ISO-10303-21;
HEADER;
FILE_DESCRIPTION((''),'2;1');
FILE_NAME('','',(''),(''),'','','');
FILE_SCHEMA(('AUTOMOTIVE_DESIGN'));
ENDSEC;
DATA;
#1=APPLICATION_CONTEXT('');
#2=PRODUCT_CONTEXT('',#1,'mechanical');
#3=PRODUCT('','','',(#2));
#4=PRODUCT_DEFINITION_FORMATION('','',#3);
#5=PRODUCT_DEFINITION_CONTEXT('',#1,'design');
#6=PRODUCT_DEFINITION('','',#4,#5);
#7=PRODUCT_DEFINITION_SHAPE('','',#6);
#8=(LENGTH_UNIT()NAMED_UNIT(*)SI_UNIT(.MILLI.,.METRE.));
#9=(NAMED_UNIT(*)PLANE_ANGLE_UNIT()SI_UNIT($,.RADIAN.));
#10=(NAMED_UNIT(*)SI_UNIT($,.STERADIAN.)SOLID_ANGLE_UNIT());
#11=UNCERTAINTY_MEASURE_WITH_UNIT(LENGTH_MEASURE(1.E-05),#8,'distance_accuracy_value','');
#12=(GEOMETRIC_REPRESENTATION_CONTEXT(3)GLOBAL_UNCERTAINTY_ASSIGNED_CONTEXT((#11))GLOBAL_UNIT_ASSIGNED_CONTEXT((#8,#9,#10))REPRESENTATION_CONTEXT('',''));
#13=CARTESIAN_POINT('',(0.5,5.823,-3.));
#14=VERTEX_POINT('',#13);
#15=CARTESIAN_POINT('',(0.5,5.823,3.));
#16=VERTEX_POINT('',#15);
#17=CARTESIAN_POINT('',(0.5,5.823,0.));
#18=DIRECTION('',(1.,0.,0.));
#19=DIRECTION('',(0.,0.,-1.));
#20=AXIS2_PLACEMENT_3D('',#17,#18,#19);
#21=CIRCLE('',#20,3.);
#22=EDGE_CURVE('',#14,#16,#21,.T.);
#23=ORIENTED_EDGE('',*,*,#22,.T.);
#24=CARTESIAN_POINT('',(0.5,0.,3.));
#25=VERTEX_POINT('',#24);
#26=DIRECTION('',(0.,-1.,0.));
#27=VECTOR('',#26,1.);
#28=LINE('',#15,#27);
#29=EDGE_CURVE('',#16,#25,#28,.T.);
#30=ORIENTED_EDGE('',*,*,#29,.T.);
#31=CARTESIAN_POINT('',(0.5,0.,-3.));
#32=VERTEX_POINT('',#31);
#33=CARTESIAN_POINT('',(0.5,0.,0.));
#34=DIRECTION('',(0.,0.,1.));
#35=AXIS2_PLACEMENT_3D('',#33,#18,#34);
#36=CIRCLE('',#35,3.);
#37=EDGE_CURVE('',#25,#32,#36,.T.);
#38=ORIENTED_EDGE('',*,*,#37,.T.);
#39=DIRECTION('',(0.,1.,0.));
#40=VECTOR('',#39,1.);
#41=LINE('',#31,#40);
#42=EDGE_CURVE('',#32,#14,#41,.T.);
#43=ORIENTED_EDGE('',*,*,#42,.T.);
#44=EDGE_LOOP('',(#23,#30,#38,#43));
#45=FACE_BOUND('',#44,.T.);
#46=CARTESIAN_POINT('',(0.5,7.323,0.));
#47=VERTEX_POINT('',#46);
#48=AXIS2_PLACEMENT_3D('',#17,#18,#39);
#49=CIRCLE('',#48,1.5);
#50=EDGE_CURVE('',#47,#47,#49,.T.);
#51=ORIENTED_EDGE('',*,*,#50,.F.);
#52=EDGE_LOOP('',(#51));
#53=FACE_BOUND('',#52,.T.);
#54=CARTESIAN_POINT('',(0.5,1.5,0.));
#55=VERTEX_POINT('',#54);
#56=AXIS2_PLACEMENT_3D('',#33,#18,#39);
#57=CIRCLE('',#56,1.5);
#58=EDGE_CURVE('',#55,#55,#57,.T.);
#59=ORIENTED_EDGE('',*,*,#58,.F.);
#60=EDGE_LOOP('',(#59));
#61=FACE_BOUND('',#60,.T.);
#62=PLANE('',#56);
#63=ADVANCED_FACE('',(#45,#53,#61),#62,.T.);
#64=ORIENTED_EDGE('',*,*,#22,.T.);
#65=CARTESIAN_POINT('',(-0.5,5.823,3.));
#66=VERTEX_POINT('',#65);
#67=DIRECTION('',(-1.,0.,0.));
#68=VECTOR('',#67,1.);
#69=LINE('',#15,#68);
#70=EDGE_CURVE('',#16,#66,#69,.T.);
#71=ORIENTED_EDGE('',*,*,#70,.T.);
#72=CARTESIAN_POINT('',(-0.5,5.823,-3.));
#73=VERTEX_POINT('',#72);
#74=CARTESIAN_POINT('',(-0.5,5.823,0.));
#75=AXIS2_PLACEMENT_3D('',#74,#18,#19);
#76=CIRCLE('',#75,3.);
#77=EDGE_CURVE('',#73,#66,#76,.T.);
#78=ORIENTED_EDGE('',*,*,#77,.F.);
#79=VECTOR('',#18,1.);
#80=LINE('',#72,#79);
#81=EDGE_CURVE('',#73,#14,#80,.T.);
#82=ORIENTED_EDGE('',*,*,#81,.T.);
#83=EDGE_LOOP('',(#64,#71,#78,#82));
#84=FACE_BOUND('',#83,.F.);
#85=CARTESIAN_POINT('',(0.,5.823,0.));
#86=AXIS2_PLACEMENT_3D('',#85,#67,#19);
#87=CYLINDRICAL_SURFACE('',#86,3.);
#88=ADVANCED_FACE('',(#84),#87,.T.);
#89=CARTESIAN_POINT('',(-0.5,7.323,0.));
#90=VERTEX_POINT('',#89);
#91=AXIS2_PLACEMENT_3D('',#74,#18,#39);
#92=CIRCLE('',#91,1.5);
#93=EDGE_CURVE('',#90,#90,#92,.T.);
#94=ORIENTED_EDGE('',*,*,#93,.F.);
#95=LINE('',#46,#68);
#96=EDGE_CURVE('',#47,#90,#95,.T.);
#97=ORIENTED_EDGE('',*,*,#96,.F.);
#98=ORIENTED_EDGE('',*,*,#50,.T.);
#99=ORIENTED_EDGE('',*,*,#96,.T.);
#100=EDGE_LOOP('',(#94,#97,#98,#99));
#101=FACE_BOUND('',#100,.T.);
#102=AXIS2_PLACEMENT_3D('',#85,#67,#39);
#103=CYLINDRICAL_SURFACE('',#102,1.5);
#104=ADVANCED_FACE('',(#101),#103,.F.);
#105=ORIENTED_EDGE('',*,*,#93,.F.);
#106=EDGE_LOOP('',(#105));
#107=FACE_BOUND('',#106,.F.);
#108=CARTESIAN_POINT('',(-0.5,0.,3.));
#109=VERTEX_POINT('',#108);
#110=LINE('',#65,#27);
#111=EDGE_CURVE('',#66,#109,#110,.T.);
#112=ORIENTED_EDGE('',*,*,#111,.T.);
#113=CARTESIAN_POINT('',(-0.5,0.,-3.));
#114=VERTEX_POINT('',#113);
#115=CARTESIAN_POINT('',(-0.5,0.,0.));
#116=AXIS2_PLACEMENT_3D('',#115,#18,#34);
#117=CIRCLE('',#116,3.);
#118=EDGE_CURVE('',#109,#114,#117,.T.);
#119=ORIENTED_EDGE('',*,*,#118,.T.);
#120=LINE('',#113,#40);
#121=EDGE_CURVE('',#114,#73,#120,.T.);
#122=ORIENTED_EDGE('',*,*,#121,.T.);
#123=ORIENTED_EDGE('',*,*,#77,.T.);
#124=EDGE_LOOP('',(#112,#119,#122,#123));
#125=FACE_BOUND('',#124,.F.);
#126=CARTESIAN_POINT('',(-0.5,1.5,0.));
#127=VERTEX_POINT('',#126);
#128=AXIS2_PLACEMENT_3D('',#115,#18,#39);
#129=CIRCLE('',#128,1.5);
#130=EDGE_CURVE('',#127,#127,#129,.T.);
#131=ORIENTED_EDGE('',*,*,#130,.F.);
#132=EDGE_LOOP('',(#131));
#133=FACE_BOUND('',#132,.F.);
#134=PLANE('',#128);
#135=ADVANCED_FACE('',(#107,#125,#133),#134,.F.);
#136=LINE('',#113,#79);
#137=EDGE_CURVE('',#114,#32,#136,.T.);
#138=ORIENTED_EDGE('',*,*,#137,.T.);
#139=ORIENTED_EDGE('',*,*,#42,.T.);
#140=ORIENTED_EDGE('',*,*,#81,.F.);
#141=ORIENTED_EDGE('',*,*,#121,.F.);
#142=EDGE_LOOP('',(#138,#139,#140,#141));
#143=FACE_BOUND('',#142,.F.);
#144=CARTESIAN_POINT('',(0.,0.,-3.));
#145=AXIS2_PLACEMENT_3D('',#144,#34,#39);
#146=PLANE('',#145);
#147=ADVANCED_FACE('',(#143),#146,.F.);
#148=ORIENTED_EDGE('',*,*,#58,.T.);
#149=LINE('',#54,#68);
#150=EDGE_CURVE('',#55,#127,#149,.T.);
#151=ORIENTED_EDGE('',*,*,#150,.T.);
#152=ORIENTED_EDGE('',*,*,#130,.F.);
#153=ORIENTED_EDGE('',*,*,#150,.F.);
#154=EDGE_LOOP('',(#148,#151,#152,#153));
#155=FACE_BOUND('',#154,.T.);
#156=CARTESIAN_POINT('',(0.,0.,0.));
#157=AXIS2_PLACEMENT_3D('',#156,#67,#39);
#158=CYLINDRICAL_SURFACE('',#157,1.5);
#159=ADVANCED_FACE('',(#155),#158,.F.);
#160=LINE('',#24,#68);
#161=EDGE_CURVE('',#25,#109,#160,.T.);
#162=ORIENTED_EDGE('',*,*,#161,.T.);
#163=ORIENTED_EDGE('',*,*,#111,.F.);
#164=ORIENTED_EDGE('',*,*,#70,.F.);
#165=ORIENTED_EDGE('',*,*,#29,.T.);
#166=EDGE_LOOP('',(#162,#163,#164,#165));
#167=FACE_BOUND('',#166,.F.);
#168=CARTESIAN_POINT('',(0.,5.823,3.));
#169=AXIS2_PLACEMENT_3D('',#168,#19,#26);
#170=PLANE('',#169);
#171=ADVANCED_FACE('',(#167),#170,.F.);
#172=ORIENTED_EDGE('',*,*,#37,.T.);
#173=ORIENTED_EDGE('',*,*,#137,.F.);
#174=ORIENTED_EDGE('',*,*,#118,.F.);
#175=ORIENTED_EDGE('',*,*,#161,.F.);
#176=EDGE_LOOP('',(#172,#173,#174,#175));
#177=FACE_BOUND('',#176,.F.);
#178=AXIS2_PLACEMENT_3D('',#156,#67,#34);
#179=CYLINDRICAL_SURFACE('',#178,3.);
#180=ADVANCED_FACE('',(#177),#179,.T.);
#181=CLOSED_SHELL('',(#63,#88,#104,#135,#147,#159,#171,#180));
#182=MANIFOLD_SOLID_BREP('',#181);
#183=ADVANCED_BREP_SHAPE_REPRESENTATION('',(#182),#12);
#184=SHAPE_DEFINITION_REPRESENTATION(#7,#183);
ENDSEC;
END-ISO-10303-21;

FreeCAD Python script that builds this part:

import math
import FreeCAD as App
import Part
import Sketcher

doc = App.newDocument("Part")
body = doc.addObject("PartDesign::Body", "Body")

sketch1 = doc.addObject("Sketcher::SketchObject", "Sketch")
body.addObject(sketch1)
sketch1.AttachmentSupport = (doc.YZ_Plane, [""])
sketch1.MapMode = "FlatFace"
sketch1.addGeometry([
    Part.ArcOfCircle(Part.Circle(App.Vector(0, 0, 0), App.Vector(0, 0, 1), 3), math.radians(90), math.radians(270)),
    Part.LineSegment(App.Vector(0, -3, 0), App.Vector(5.823, -3, 0)),
    Part.ArcOfCircle(Part.Circle(App.Vector(5.823, 0, 0), App.Vector(0, 0, 1), 3), math.radians(-90), math.radians(90)),
    Part.LineSegment(App.Vector(5.823, 3, 0), App.Vector(0, 3, 0)),
    Part.Circle(App.Vector(0, 0, 0), App.Vector(0, 0, 1), 1.5),
    Part.Circle(App.Vector(5.823, 0, 0), App.Vector(0, 0, 1), 1.5),
], False)
sketch1.addConstraint([
    Sketcher.Constraint("Tangent", 0, 2, 1, 1),
    Sketcher.Constraint("Tangent", 1, 2, 2, 1),
    Sketcher.Constraint("Tangent", 2, 2, 3, 1),
    Sketcher.Constraint("Tangent", 3, 2, 0, 1),
    Sketcher.Constraint("Horizontal", 1),
    Sketcher.Constraint("Horizontal", 3),
    Sketcher.Constraint("Coincident", 0, 3, -1, 1),
    Sketcher.Constraint("Coincident", 4, 3, -1, 1),
    Sketcher.Constraint("Coincident", 5, 3, 2, 3),
    Sketcher.Constraint("Equal", 4, 5),
    Sketcher.Constraint("Diameter", 4, 3.0),
    Sketcher.Constraint("Radius", 0, 3.0),
    Sketcher.Constraint("DistanceX", 1, 1, 1, 2, 5.823),
])
pad1 = doc.addObject("PartDesign::Pad", "Pad")
body.addObject(pad1)
pad1.Profile = sketch1
pad1.Length = 1
pad1.Midplane = True

doc.recompute()
